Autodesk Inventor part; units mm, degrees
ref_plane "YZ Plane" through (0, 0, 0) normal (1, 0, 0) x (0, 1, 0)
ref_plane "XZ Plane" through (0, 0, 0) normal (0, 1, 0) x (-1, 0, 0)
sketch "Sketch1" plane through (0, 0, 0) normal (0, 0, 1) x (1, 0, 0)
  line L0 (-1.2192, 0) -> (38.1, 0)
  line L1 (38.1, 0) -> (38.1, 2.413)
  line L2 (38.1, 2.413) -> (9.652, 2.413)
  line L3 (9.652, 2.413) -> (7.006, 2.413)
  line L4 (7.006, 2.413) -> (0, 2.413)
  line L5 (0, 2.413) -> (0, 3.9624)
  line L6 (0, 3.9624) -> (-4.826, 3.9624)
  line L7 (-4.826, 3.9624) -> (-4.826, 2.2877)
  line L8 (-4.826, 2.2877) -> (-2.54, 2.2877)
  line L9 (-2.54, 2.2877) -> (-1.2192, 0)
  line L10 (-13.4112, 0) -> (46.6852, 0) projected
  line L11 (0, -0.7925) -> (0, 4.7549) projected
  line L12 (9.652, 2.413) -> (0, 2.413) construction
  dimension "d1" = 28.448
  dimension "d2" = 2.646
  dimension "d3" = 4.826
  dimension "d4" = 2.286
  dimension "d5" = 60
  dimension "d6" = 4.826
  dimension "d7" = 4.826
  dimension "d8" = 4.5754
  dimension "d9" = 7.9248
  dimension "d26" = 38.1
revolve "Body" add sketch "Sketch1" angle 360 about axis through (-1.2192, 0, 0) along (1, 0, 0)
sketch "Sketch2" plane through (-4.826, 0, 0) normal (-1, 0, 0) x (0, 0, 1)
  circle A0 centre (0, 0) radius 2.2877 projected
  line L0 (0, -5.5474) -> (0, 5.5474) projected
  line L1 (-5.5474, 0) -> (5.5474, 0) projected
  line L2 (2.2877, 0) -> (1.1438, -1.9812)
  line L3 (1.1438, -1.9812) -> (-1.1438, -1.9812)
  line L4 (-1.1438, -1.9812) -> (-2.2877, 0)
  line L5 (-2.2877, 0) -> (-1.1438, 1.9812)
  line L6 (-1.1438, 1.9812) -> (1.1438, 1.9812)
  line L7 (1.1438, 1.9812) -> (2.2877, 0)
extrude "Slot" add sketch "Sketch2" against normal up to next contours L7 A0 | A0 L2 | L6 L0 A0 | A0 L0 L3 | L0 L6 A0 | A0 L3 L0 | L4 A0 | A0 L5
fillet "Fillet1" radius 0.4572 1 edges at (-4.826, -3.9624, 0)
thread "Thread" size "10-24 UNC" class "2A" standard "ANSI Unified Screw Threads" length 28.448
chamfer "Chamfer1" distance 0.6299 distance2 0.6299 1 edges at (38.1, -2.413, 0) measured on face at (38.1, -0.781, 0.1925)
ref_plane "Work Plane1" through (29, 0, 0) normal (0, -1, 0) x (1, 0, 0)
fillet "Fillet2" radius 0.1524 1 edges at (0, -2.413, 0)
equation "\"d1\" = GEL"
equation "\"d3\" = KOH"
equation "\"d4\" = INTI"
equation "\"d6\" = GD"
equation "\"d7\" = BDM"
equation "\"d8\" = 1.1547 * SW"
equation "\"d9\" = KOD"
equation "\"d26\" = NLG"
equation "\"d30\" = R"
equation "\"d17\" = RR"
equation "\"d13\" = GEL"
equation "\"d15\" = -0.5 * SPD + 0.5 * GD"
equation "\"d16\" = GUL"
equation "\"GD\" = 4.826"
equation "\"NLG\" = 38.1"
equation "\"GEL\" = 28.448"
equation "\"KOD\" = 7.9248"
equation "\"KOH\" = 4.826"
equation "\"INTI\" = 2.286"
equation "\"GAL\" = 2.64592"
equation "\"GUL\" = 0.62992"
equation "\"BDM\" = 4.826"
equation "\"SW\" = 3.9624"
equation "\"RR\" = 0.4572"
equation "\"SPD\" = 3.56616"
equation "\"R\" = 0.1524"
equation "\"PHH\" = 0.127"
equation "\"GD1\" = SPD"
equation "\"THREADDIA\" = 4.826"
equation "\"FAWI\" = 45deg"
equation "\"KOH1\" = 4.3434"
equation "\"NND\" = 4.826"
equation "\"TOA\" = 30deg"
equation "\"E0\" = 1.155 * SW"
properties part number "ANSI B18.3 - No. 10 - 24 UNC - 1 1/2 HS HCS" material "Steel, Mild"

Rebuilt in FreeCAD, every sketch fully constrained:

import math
import FreeCAD as App
import Part
import Sketcher

V = App.Vector
Q = App.Units.Quantity


def edges_at(feature, points):
    """Names of the edges that pass closest to the given points."""
    edges = feature.Shape.Edges
    near = lambda p: min(range(len(edges)), key=lambda i: edges[i].distToShape(Part.Vertex(*p))[0])
    return sorted({f"Edge{near(p) + 1}" for p in points})

doc = App.newDocument("Part")
body = doc.addObject("PartDesign::Body", "Body")

sketch1 = body.newObject("Sketcher::SketchObject", "Sketch")
sketch1.AttachmentSupport = (doc.getObject("XY_Plane"), [""])
sketch1.MapMode = "FlatFace"
sketch1.addGeometry([
    Part.LineSegment(V(-2.5, 2.3, 0), V(-1.2, 0, 0)),
    Part.LineSegment(V(-1.2, 0, 0), V(38.1, 0, 0)),
    Part.LineSegment(V(38.1, 0, 0), V(38.1, 2.4, 0)),
    Part.LineSegment(V(38.1, 2.4, 0), V(0, 2.4, 0)),
    Part.LineSegment(V(0, 2.4, 0), V(0, 4, 0)),
    Part.LineSegment(V(0, 4, 0), V(-4.8, 4, 0)),
    Part.LineSegment(V(-4.8, 4, 0), V(-4.8, 2.3, 0)),
    Part.LineSegment(V(-4.8, 2.3, 0), V(-2.5, 2.3, 0)),
], False)
sketch1.addConstraint([
    Sketcher.Constraint("Coincident", 0, 2, 1, 1),
    Sketcher.Constraint("Coincident", 1, 2, 2, 1),
    Sketcher.Constraint("Coincident", 2, 2, 3, 1),
    Sketcher.Constraint("Coincident", 3, 2, 4, 1),
    Sketcher.Constraint("Coincident", 4, 2, 5, 1),
    Sketcher.Constraint("Coincident", 5, 2, 6, 1),
    Sketcher.Constraint("Coincident", 6, 2, 7, 1),
    Sketcher.Constraint("Coincident", 7, 2, 0, 1),
    Sketcher.Constraint("Horizontal", 1),
    Sketcher.Constraint("Vertical", 2),
    Sketcher.Constraint("Horizontal", 3),
    Sketcher.Constraint("Vertical", 4),
    Sketcher.Constraint("Horizontal", 5),
    Sketcher.Constraint("Vertical", 6),
    Sketcher.Constraint("Horizontal", 7),
    Sketcher.Constraint("PointOnObject", 0, 2, -1),
    Sketcher.Constraint("PointOnObject", 3, 2, -2),
    Sketcher.Constraint("DistanceX", 3, 2, 3, 1, Q("1.5 in")),
    Sketcher.Constraint("Angle", 0, Q("-60 deg")),
    Sketcher.Constraint("DistanceX", 5, 2, 5, 1, Q("0.19 in")),
    Sketcher.Constraint("DistanceX", 7, 1, 7, 2, Q("0.09 in")),
    Sketcher.Constraint("DistanceX", 1, 1, 1, 2, Q("1.548 in")),
    Sketcher.Constraint("DistanceY", 2, 1, 2, 2, Q("0.095 in")),
    Sketcher.Constraint("DistanceY", 4, 1, 4, 2, Q("0.061 in")),
])
revolution = body.newObject("PartDesign::Revolution", "Revolution")
revolution.Profile = sketch1
revolution.ReferenceAxis = (sketch1, ["H_Axis"])
revolution.Angle = 360

sketch2 = body.newObject("Sketcher::SketchObject", "Sketch001")
sketch2.AttachmentSupport = (doc.getObject("YZ_Plane"), [""])
sketch2.MapMode = "FlatFace"
sketch2.AttachmentOffset = App.Placement(V(0, 0, -0.19 * 25.4), App.Rotation())
sketch2.addGeometry([
    Part.LineSegment(V(2, 1.1, 0), V(0, 2.3, 0)),
    Part.ArcOfCircle(Part.Circle(V(0, 0, 0), V(0, 0, 1), 2.3), math.radians(30), math.radians(90)),
    Part.ArcOfCircle(Part.Circle(V(0, 0, 0), V(0, 0, 1), 2.3), math.radians(90), math.radians(150)),
    Part.LineSegment(V(0, 2.3, 0), V(-2, 1.1, 0)),
    Part.ArcOfCircle(Part.Circle(V(0, 0, 0), V(0, 0, 1), 2.3), math.radians(-30), math.radians(30)),
    Part.LineSegment(V(2, 1.1, 0), V(2, -1.1, 0)),
    Part.LineSegment(V(-2, 1.1, 0), V(-2, -1.1, 0)),
    Part.ArcOfCircle(Part.Circle(V(0, 0, 0), V(0, 0, 1), 2.3), math.radians(150), math.radians(210)),
    Part.LineSegment(V(-2, -1.1, 0), V(0, -2.3, 0)),
    Part.ArcOfCircle(Part.Circle(V(0, 0, 0), V(0, 0, 1), 2.3), math.radians(-150), math.radians(-90)),
    Part.ArcOfCircle(Part.Circle(V(0, 0, 0), V(0, 0, 1), 2.3), math.radians(-90), math.radians(-30)),
    Part.LineSegment(V(0, -2.3, 0), V(2, -1.1, 0)),
], False)
sketch2.addConstraint([
    Sketcher.Constraint("Coincident", 0, 1, 1, 1),
    Sketcher.Constraint("Coincident", 1, 2, 0, 2),
    Sketcher.Constraint("Coincident", 2, 1, 3, 1),
    Sketcher.Constraint("Coincident", 3, 2, 2, 2),
    Sketcher.Constraint("Coincident", 4, 1, 5, 2),
    Sketcher.Constraint("Coincident", 5, 1, 4, 2),
    Sketcher.Constraint("Coincident", 6, 1, 7, 1),
    Sketcher.Constraint("Coincident", 7, 2, 6, 2),
    Sketcher.Constraint("Coincident", 8, 1, 9, 1),
    Sketcher.Constraint("Coincident", 9, 2, 8, 2),
    Sketcher.Constraint("Coincident", 10, 1, 11, 1),
    Sketcher.Constraint("Coincident", 11, 2, 10, 2),
    Sketcher.Constraint("Vertical", 5),
    Sketcher.Constraint("Vertical", 6),
    Sketcher.Constraint("Coincident", 1, 3, -1, 1),
    Sketcher.Constraint("Coincident", 2, 3, -1, 1),
    Sketcher.Constraint("Coincident", 4, 3, -1, 1),
    Sketcher.Constraint("Coincident", 7, 3, -1, 1),
    Sketcher.Constraint("Coincident", 9, 3, -1, 1),
    Sketcher.Constraint("Coincident", 10, 3, -1, 1),
    Sketcher.Constraint("Coincident", 2, 1, 1, 2),
    Sketcher.Constraint("Coincident", 5, 1, 0, 1),
    Sketcher.Constraint("Coincident", 6, 1, 3, 2),
    Sketcher.Constraint("Coincident", 8, 1, 7, 2),
    Sketcher.Constraint("Coincident", 10, 1, 9, 2),
    Sketcher.Constraint("PointOnObject", 1, 2, -2),
    Sketcher.Constraint("PointOnObject", 9, 2, -2),
    Sketcher.Constraint("Parallel", 0, 8),
    Sketcher.Constraint("Parallel", 3, 11),
    Sketcher.Constraint("Angle", 0, Q("149.9988 deg")),
    Sketcher.Constraint("Radius", 1, 2.2877),
])
pad1 = body.newObject("PartDesign::Pad", "Pad")
pad1.Profile = sketch2
pad1.Length = 2.463
doc.recompute()

fillet = body.newObject("PartDesign::Fillet", "Fillet")
fillet.Base = (pad1, edges_at(pad1, [(-4.826, -3.962, 0)]))
fillet.Radius = Q("0.018 in")
doc.recompute()

chamfer = body.newObject("PartDesign::Chamfer", "Chamfer")
chamfer.Base = (fillet, edges_at(fillet, [(38.1, -2.413, 0)]))
chamfer.ChamferType = "Two distances"
chamfer.Size = Q("0.0247992 in")
chamfer.Size2 = Q("0.0247992 in")
doc.recompute()

fillet2 = body.newObject("PartDesign::Fillet", "Fillet001")
fillet2.Base = (chamfer, edges_at(chamfer, [(0, -2.413, 0)]))
fillet2.Radius = Q("0.006 in")

doc.recompute()
